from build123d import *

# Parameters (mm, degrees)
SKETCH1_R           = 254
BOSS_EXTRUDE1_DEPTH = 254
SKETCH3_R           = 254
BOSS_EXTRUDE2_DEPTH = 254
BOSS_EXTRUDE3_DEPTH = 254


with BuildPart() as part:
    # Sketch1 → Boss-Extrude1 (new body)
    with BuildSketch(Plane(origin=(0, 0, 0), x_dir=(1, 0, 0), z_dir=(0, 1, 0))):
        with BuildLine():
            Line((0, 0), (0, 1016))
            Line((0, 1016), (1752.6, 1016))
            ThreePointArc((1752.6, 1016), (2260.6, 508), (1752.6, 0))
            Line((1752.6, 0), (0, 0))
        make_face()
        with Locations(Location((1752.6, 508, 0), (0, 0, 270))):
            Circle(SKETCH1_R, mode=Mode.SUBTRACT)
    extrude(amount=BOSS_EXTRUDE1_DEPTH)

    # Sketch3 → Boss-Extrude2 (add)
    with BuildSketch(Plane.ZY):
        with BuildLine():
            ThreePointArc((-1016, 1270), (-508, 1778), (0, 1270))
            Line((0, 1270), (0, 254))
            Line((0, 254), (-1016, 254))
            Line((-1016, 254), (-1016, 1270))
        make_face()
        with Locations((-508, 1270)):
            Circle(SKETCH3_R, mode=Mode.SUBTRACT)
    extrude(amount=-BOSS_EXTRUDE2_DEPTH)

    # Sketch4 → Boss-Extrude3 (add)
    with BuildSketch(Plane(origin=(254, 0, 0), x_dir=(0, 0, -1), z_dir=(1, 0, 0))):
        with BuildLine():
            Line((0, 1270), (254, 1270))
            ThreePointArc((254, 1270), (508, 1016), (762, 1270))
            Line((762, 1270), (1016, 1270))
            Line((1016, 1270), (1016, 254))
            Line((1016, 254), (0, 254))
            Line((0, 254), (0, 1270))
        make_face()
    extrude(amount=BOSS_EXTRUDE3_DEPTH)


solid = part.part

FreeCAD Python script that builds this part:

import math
import FreeCAD as App
import Part
import Sketcher
Q = App.Units.Quantity

doc = App.newDocument("Part")
body = doc.addObject("PartDesign::Body", "Body")

# Sketch on XZ plane
sketch1 = body.newObject("Sketcher::SketchObject", "Sketch")
sketch1.AttachmentSupport = (doc.getObject("XZ_Plane"), [""])
sketch1.MapMode = "FlatFace"
sketch1.addGeometry([
    Part.LineSegment(App.Vector(0, -1016, 0), App.Vector(0, 0, 0)),  # 0
    Part.LineSegment(App.Vector(0, 0, 0), App.Vector(1753, 0, 0)),  # 1
    Part.ArcOfCircle(Part.Circle(App.Vector(1753, -508, 0), App.Vector(0, 0, 1), 508), math.radians(-90), math.radians(90)),  # 2
    Part.LineSegment(App.Vector(1753, -1016, 0), App.Vector(0, -1016, 0)),  # 3
    Part.Circle(App.Vector(1753, -508, 0), App.Vector(0, 0, 1), 254),  # 4
], False)
sketch1.addConstraint([
    Sketcher.Constraint("Coincident", 0, 2, 1, 1),
    Sketcher.Constraint("Tangent", 1, 2, 2, 2),
    Sketcher.Constraint("Tangent", 2, 1, 3, 1),
    Sketcher.Constraint("Coincident", 3, 2, 0, 1),
    Sketcher.Constraint("Vertical", 0),
    Sketcher.Constraint("Horizontal", 1),
    Sketcher.Constraint("Horizontal", 3),
    Sketcher.Constraint("Coincident", 0, 2, -1, 1),
    Sketcher.Constraint("Coincident", 4, 3, 2, 3),
    Sketcher.Constraint("Diameter", 4, Q("20 in")),
    Sketcher.Constraint("Radius", 2, Q("20 in")),
    Sketcher.Constraint("DistanceX", 1, 1, 1, 2, Q("69 in")),
])
pad1 = body.newObject("PartDesign::Pad", "Pad")
pad1.Profile = sketch1
pad1.Length = Q("10 in")
pad1.Reversed = True

# Sketch on YZ plane
sketch2 = body.newObject("Sketcher::SketchObject", "Sketch001")
sketch2.AttachmentSupport = (doc.getObject("YZ_Plane"), [""])
sketch2.MapMode = "FlatFace"
sketch2.addGeometry([
    Part.ArcOfCircle(Part.Circle(App.Vector(1270, -508, 0), App.Vector(0, 0, 1), 508), math.radians(-90), math.radians(90)),  # 0
    Part.LineSegment(App.Vector(1270, -1016, 0), App.Vector(254, -1016, 0)),  # 1
    Part.LineSegment(App.Vector(254, -1016, 0), App.Vector(254, 0, 0)),  # 2
    Part.LineSegment(App.Vector(254, 0, 0), App.Vector(1270, 0, 0)),  # 3
    Part.Circle(App.Vector(1270, -508, 0), App.Vector(0, 0, 1), 254),  # 4
], False)
sketch2.addConstraint([
    Sketcher.Constraint("Tangent", 0, 1, 1, 1),
    Sketcher.Constraint("Coincident", 1, 2, 2, 1),
    Sketcher.Constraint("Coincident", 2, 2, 3, 1),
    Sketcher.Constraint("Tangent", 3, 2, 0, 2),
    Sketcher.Constraint("Horizontal", 1),
    Sketcher.Constraint("Vertical", 2),
    Sketcher.Constraint("Horizontal", 3),
    Sketcher.Constraint("Coincident", 4, 3, 0, 3),
    Sketcher.Constraint("PointOnObject", 2, 2, -1),
    Sketcher.Constraint("Equal", 3, 2),
    Sketcher.Constraint("Diameter", 4, Q("20 in")),
    Sketcher.Constraint("Radius", 0, Q("20 in")),
    Sketcher.Constraint("DistanceX", -1, 1, 0, 3, Q("50 in")),
])
pad2 = body.newObject("PartDesign::Pad", "Pad001")
pad2.Profile = sketch2
pad2.Length = Q("10 in")

# Sketch on YZ plane
sketch3 = body.newObject("Sketcher::SketchObject", "Sketch002")
sketch3.AttachmentSupport = (doc.getObject("YZ_Plane"), [""])
sketch3.MapMode = "FlatFace"
sketch3.AttachmentOffset = App.Placement(App.Vector(0, 0, 10 * 25.4), App.Rotation())
sketch3.addGeometry([
    Part.LineSegment(App.Vector(1270, -254, 0), App.Vector(1270, 0, 0)),  # 0
    Part.LineSegment(App.Vector(1270, 0, 0), App.Vector(254, 0, 0)),  # 1
    Part.LineSegment(App.Vector(254, 0, 0), App.Vector(254, -1016, 0)),  # 2
    Part.LineSegment(App.Vector(254, -1016, 0), App.Vector(1270, -1016, 0)),  # 3
    Part.LineSegment(App.Vector(1270, -1016, 0), App.Vector(1270, -762, 0)),  # 4
    Part.ArcOfCircle(Part.Circle(App.Vector(1270, -508, 0), App.Vector(0, 0, 1), 254), math.radians(90), math.radians(270)),  # 5
], False)
sketch3.addConstraint([
    Sketcher.Constraint("Coincident", 0, 2, 1, 1),
    Sketcher.Constraint("Coincident", 1, 2, 2, 1),
    Sketcher.Constraint("Coincident", 2, 2, 3, 1),
    Sketcher.Constraint("Coincident", 3, 2, 4, 1),
    Sketcher.Constraint("Coincident", 4, 2, 5, 2),
    Sketcher.Constraint("Coincident", 5, 1, 0, 1),
    Sketcher.Constraint("Vertical", 0),
    Sketcher.Constraint("Horizontal", 1),
    Sketcher.Constraint("Vertical", 2),
    Sketcher.Constraint("Horizontal", 3),
    Sketcher.Constraint("Vertical", 4),
    Sketcher.Constraint("PointOnObject", 0, 2, -1),
    Sketcher.Constraint("Vertical", 5, 3, 0, 2),
    Sketcher.Constraint("Vertical", 0, 2, 3, 2),
    Sketcher.Constraint("Equal", 3, 2),
    Sketcher.Constraint("Equal", 0, 4),
    Sketcher.Constraint("Radius", 5, Q("10 in")),
    Sketcher.Constraint("DistanceX", 1, 2, 1, 1, Q("40 in")),
    Sketcher.Constraint("DistanceX", -1, 1, 5, 3, Q("50 in")),
])
pad3 = body.newObject("PartDesign::Pad", "Pad002")
pad3.Profile = sketch3
pad3.Length = Q("10 in")

doc.recompute()
